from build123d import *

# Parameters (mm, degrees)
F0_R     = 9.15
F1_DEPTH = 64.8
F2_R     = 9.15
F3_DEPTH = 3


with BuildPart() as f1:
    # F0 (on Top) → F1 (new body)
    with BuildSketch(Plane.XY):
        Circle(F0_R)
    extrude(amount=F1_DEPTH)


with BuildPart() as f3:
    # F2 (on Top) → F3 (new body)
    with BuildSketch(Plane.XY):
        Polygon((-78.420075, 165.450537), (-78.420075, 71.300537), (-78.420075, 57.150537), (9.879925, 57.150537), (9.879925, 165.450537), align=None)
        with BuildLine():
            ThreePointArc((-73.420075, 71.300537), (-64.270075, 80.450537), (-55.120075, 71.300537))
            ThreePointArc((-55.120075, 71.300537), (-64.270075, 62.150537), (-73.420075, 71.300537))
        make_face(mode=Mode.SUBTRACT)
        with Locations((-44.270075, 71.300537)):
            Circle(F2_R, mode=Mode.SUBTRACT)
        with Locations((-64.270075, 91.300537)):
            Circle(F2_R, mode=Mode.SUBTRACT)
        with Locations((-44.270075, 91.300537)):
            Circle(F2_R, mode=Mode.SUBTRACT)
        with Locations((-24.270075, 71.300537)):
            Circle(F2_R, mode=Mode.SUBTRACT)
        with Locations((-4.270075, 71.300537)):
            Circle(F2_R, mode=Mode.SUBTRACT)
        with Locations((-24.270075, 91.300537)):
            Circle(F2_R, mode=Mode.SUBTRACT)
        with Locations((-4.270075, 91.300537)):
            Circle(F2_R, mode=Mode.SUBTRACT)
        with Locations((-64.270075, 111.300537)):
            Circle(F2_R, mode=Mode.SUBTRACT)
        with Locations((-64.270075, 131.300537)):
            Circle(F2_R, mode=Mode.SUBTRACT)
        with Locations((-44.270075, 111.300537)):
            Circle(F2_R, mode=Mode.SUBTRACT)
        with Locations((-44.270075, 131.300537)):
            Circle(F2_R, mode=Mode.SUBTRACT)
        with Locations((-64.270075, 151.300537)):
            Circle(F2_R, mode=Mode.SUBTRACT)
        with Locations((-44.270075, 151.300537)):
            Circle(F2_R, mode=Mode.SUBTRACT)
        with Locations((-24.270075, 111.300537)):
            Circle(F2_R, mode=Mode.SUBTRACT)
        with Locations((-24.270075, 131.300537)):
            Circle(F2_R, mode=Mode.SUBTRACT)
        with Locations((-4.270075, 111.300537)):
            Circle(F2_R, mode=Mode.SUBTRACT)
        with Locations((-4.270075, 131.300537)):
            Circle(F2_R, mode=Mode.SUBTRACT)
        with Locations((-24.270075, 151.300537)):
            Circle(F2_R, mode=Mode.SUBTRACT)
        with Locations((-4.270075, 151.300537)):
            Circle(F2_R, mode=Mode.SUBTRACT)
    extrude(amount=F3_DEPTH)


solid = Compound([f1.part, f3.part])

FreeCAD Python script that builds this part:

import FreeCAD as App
import Part
import Sketcher

V = App.Vector
Q = App.Units.Quantity


def add_polygon(sketch, points):
    """Adds a closed chain of lines whose ends are joined by coincident constraints."""
    first, n = sketch.GeometryCount, len(points)
    for a, b in zip(points, points[1:] + points[:1]):
        sketch.addGeometry(Part.LineSegment(App.Vector(*a, 0), App.Vector(*b, 0)), False)
    for i in range(n):
        sketch.addConstraint(Sketcher.Constraint("Coincident", first + i, 2, first + (i + 1) % n, 1))

doc = App.newDocument("Part")
body = doc.addObject("PartDesign::Body", "Body")

# Sketch on XY plane
sketch1 = doc.addObject("Sketcher::SketchObject", "Sketch")
body.addObject(sketch1)
sketch1.AttachmentSupport = (doc.XY_Plane, [""])
sketch1.MapMode = "FlatFace"
sketch1.addGeometry(Part.Circle(V(0, 0, 0), V(0, 0, 1), 9), False)
sketch1.addConstraint([
    Sketcher.Constraint("Coincident", 0, 3, -1, 1),
    Sketcher.Constraint("Diameter", 0, Q("18.3 mm")),
])
pad1 = doc.addObject("PartDesign::Pad", "Pad")
body.addObject(pad1)
pad1.Profile = sketch1
pad1.Length = 64.8
body2 = doc.addObject("PartDesign::Body", "Body001")

# Sketch on XY plane
sketch2 = doc.addObject("Sketcher::SketchObject", "Sketch001")
body2.addObject(sketch2)
sketch2.AttachmentSupport = (doc.getObject("XY_Plane001"), [""])
sketch2.MapMode = "FlatFace"
add_polygon(sketch2, [(-78, 165), (-78, 57), (10, 57), (10, 165)])  # lines 0-3
sketch2.addGeometry(Part.Circle(V(-64, 71, 0), V(0, 0, 1), 9), False)  # 4
sketch2.addGeometry(Part.Circle(V(-44, 71, 0), V(0, 0, 1), 9), False)  # 5
sketch2.addGeometry(Part.Circle(V(-64, 91, 0), V(0, 0, 1), 9), False)  # 6
sketch2.addGeometry(Part.Circle(V(-44, 91, 0), V(0, 0, 1), 9), False)  # 7
sketch2.addGeometry(Part.Circle(V(-24, 71, 0), V(0, 0, 1), 9), False)  # 8
sketch2.addGeometry(Part.Circle(V(-4, 71, 0), V(0, 0, 1), 9), False)  # 9
sketch2.addGeometry(Part.Circle(V(-24, 91, 0), V(0, 0, 1), 9), False)  # 10
sketch2.addGeometry(Part.Circle(V(-4, 91, 0), V(0, 0, 1), 9), False)  # 11
sketch2.addGeometry(Part.Circle(V(-64, 111, 0), V(0, 0, 1), 9), False)  # 12
sketch2.addGeometry(Part.Circle(V(-64, 131, 0), V(0, 0, 1), 9), False)  # 13
sketch2.addGeometry(Part.Circle(V(-44, 111, 0), V(0, 0, 1), 9), False)  # 14
sketch2.addGeometry(Part.Circle(V(-44, 131, 0), V(0, 0, 1), 9), False)  # 15
sketch2.addGeometry(Part.Circle(V(-64, 151, 0), V(0, 0, 1), 9), False)  # 16
sketch2.addGeometry(Part.Circle(V(-44, 151, 0), V(0, 0, 1), 9), False)  # 17
sketch2.addGeometry(Part.Circle(V(-24, 111, 0), V(0, 0, 1), 9), False)  # 18
sketch2.addGeometry(Part.Circle(V(-24, 131, 0), V(0, 0, 1), 9), False)  # 19
sketch2.addGeometry(Part.Circle(V(-4, 111, 0), V(0, 0, 1), 9), False)  # 20
sketch2.addGeometry(Part.Circle(V(-4, 131, 0), V(0, 0, 1), 9), False)  # 21
sketch2.addGeometry(Part.Circle(V(-24, 151, 0), V(0, 0, 1), 9), False)  # 22
sketch2.addGeometry(Part.Circle(V(-4, 151, 0), V(0, 0, 1), 9), False)  # 23
sketch2.addConstraint([
    Sketcher.Constraint("Vertical", 0),
    Sketcher.Constraint("Horizontal", 1),
    Sketcher.Constraint("Vertical", 2),
    Sketcher.Constraint("Horizontal", 3),
    Sketcher.Constraint("Equal", 4, 5),
    Sketcher.Constraint("Equal", 5, 6),
    Sketcher.Constraint("Equal", 6, 7),
    Sketcher.Constraint("Equal", 7, 8),
    Sketcher.Constraint("Equal", 8, 9),
    Sketcher.Constraint("Equal", 9, 10),
    Sketcher.Constraint("Equal", 10, 11),
    Sketcher.Constraint("Equal", 11, 12),
    Sketcher.Constraint("Equal", 12, 13),
    Sketcher.Constraint("Equal", 13, 14),
    Sketcher.Constraint("Equal", 14, 15),
    Sketcher.Constraint("Equal", 15, 16),
    Sketcher.Constraint("Equal", 16, 17),
    Sketcher.Constraint("Equal", 17, 18),
    Sketcher.Constraint("Equal", 18, 19),
    Sketcher.Constraint("Equal", 19, 20),
    Sketcher.Constraint("Equal", 20, 21),
    Sketcher.Constraint("Equal", 21, 22),
    Sketcher.Constraint("Equal", 22, 23),
    Sketcher.Constraint("Horizontal", 4, 3, 5, 3),
    Sketcher.Constraint("Horizontal", 6, 3, 7, 3),
    Sketcher.Constraint("Horizontal", 5, 3, 8, 3),
    Sketcher.Constraint("Horizontal", 8, 3, 9, 3),
    Sketcher.Constraint("Horizontal", 7, 3, 10, 3),
    Sketcher.Constraint("Horizontal", 10, 3, 11, 3),
    Sketcher.Constraint("Horizontal", 12, 3, 14, 3),
    Sketcher.Constraint("Horizontal", 13, 3, 15, 3),
    Sketcher.Constraint("Horizontal", 16, 3, 17, 3),
    Sketcher.Constraint("Horizontal", 14, 3, 18, 3),
    Sketcher.Constraint("Horizontal", 15, 3, 19, 3),
    Sketcher.Constraint("Horizontal", 18, 3, 20, 3),
    Sketcher.Constraint("Horizontal", 19, 3, 21, 3),
    Sketcher.Constraint("Horizontal", 17, 3, 22, 3),
    Sketcher.Constraint("Horizontal", 22, 3, 23, 3),
    Sketcher.Constraint("Vertical", 4, 3, 6, 3),
    Sketcher.Constraint("Vertical", 5, 3, 7, 3),
    Sketcher.Constraint("Vertical", 8, 3, 10, 3),
    Sketcher.Constraint("Vertical", 9, 3, 11, 3),
    Sketcher.Constraint("Vertical", 6, 3, 12, 3),
    Sketcher.Constraint("Vertical", 12, 3, 13, 3),
    Sketcher.Constraint("Vertical", 7, 3, 14, 3),
    Sketcher.Constraint("Vertical", 14, 3, 15, 3),
    Sketcher.Constraint("Vertical", 13, 3, 16, 3),
    Sketcher.Constraint("Vertical", 15, 3, 17, 3),
    Sketcher.Constraint("Vertical", 10, 3, 18, 3),
    Sketcher.Constraint("Vertical", 18, 3, 19, 3),
    Sketcher.Constraint("Vertical", 11, 3, 20, 3),
    Sketcher.Constraint("Vertical", 20, 3, 21, 3),
    Sketcher.Constraint("Vertical", 19, 3, 22, 3),
    Sketcher.Constraint("Vertical", 21, 3, 23, 3),
    Sketcher.Constraint("Diameter", 4, Q("18.3 mm")),
    Sketcher.Constraint("DistanceX", 1, 1, 1, 2, Q("88.3 mm")),
    Sketcher.Constraint("DistanceY", 0, 2, 0, 1, Q("108.3 mm")),
    Sketcher.Constraint("DistanceX", 4, 3, 5, 3, Q("20 mm")),
    Sketcher.Constraint("DistanceY", 4, 3, 6, 3, Q("20 mm")),
    Sketcher.Constraint("DistanceX", 5, 3, 8, 3, Q("20 mm")),
    Sketcher.Constraint("DistanceX", 8, 3, 9, 3, Q("20 mm")),
    Sketcher.Constraint("DistanceY", 6, 3, 12, 3, Q("20 mm")),
    Sketcher.Constraint("DistanceY", 12, 3, 13, 3, Q("20 mm")),
    Sketcher.Constraint("DistanceY", 13, 3, 16, 3, Q("20 mm")),
    Sketcher.Constraint("DistanceX", 0, 2, 4, 3, Q("14.15 mm")),
    Sketcher.Constraint("DistanceY", 0, 2, 4, 3, Q("14.15 mm")),
    Sketcher.Constraint("DistanceX", 4, 3, -1, 1, Q("64.270075 mm")),
    Sketcher.Constraint("DistanceY", -1, 1, 4, 3, Q("71.300537 mm")),
])
pad2 = doc.addObject("PartDesign::Pad", "Pad001")
body2.addObject(pad2)
pad2.Profile = sketch2
pad2.Length = 3

doc.recompute()
